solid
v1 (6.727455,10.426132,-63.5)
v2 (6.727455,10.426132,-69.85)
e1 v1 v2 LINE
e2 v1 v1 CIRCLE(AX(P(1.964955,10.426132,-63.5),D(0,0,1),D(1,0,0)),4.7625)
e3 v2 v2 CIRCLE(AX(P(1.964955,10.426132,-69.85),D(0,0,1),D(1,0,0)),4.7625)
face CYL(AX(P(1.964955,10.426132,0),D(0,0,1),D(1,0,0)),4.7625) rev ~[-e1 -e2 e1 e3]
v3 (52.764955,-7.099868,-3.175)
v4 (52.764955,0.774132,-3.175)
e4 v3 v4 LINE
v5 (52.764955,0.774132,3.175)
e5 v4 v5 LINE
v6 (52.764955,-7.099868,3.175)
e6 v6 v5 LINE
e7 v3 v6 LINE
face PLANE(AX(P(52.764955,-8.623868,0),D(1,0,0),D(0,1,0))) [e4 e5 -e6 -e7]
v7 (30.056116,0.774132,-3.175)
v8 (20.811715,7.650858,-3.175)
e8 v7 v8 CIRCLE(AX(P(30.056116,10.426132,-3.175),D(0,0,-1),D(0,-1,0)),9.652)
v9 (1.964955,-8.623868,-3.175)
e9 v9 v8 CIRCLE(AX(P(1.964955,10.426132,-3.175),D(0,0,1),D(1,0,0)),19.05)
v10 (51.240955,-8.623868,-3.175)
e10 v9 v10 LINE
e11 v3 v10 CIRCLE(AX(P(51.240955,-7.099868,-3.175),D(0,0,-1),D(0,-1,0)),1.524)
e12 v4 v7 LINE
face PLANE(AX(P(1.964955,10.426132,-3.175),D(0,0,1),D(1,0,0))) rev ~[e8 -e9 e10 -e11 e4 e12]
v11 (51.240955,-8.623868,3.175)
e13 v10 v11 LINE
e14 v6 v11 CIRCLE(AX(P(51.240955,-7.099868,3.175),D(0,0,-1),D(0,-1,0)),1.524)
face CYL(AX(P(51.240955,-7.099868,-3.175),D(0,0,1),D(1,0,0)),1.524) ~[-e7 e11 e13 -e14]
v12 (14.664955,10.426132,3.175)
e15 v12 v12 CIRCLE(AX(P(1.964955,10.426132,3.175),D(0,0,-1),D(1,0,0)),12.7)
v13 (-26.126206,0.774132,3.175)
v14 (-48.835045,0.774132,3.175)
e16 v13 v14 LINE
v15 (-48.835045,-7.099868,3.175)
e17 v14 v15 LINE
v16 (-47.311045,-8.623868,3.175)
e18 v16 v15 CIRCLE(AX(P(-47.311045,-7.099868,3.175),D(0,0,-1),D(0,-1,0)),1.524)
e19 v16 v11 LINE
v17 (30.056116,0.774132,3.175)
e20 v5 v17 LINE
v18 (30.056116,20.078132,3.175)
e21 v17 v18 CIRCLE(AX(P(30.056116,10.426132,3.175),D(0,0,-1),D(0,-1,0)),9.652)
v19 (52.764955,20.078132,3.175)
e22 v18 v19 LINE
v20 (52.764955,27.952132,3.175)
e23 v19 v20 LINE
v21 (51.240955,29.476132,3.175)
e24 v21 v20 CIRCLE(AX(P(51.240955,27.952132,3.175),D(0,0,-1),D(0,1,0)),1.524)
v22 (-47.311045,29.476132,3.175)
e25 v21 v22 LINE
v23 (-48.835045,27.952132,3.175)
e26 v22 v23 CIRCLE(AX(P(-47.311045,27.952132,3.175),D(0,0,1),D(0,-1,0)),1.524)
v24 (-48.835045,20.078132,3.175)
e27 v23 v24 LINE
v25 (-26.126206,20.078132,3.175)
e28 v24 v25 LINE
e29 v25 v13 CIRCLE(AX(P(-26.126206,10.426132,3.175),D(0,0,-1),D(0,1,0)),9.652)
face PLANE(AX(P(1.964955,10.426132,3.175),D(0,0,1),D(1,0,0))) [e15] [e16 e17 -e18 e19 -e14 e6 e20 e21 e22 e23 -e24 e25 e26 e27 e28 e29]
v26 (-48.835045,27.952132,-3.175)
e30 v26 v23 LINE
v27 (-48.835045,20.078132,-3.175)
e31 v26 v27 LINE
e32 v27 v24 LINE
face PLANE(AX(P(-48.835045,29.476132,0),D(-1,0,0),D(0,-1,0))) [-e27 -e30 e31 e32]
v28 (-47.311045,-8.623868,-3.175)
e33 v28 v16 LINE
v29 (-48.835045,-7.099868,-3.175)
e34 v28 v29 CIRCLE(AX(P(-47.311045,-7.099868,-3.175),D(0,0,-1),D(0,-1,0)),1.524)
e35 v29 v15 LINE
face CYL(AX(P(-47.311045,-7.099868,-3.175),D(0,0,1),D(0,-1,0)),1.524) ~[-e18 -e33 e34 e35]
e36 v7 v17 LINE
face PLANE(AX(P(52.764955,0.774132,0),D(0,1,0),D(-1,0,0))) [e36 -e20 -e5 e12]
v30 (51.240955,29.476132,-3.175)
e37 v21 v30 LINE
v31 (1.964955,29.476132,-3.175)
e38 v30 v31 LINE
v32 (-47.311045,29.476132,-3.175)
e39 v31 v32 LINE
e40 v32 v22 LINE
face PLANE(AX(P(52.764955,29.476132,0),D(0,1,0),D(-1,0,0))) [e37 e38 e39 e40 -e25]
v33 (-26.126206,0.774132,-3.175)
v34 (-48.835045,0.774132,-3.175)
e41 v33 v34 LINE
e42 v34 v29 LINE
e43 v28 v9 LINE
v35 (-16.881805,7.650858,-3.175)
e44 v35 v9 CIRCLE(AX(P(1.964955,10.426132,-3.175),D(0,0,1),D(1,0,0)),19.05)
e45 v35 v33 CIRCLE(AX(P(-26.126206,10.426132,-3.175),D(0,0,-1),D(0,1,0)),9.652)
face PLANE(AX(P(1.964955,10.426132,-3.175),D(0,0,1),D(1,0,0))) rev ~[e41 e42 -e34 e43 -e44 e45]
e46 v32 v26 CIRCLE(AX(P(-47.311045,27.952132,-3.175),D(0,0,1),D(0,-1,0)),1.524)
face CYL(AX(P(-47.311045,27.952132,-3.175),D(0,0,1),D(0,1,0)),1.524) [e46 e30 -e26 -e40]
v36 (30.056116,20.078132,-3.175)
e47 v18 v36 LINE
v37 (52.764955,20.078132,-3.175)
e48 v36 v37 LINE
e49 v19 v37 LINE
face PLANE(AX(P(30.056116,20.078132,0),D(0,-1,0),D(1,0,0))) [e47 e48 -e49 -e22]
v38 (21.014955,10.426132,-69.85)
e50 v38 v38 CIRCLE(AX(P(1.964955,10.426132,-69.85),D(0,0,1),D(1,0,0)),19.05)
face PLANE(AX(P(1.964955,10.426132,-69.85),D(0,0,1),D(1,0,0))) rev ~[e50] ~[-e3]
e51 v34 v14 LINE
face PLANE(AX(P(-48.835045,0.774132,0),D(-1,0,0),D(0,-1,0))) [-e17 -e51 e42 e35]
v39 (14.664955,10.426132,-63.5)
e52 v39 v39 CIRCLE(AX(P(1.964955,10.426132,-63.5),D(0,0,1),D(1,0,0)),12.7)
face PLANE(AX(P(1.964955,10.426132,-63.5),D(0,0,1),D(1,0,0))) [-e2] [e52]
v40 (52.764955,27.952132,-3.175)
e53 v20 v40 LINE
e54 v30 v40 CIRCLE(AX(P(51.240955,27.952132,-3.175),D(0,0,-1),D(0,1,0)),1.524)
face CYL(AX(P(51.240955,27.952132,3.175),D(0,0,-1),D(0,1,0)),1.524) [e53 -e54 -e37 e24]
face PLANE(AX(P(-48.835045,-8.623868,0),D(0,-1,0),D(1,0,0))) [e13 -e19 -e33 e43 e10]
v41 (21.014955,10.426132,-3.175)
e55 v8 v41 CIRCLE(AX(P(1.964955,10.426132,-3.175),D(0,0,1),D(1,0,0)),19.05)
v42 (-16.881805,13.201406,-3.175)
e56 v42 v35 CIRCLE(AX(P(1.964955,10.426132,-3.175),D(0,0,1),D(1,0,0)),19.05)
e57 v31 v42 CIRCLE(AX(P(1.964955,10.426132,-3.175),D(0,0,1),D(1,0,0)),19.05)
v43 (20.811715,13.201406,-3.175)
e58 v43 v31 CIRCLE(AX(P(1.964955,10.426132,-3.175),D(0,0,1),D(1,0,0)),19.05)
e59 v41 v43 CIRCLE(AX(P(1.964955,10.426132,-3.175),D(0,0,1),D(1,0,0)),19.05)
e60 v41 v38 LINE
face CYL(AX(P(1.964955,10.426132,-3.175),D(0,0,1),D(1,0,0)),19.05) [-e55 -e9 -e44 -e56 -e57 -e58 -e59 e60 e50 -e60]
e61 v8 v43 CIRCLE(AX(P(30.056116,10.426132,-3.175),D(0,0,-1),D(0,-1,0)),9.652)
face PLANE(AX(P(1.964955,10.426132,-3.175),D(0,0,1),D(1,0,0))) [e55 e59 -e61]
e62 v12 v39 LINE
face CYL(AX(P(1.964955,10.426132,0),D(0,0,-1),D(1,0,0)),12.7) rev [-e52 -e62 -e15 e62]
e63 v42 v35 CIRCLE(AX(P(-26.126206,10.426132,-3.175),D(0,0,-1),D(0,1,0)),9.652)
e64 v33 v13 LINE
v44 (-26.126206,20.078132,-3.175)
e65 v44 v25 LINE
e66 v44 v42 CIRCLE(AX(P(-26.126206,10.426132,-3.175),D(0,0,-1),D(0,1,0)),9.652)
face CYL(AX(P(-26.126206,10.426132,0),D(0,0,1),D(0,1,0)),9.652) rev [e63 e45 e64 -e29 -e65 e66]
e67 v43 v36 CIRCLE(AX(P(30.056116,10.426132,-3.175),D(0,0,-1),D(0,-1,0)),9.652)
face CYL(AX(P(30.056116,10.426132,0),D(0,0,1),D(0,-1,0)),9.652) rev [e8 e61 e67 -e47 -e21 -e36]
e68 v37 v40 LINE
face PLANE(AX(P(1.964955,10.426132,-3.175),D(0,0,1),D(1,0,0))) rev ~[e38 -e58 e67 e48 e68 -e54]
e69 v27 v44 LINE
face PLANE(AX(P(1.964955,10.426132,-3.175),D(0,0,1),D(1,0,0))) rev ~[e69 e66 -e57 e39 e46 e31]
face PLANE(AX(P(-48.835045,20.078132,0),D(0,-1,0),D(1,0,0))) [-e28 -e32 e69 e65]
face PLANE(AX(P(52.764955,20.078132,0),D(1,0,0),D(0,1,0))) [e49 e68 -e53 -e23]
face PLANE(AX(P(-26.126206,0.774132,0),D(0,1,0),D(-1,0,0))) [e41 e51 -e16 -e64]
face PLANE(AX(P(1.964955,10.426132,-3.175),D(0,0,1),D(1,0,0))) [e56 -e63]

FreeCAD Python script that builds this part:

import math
import FreeCAD as App
import Part
import Sketcher
Q = App.Units.Quantity


def edges_at(feature, points):
    """Names of the edges that pass closest to the given points."""
    edges = feature.Shape.Edges
    near = lambda p: min(range(len(edges)), key=lambda i: edges[i].distToShape(Part.Vertex(*p))[0])
    return sorted({f"Edge{near(p) + 1}" for p in points})

doc = App.newDocument("Part")
params = doc.addObject("Spreadsheet::Sheet", "Params")
for row, (alias, value) in enumerate([
    ("sketch1_width", "4 in"),
    ("sketch1_radius", "0.38 in"),
    ("sketch1_height", "0.37 in"),
    ("pad1_length", "0.25 in"),
    ("fillet_radius", "0.06 in"),
    ("sketch2_diameter", "1.5 in"),
    ("pad2_length", "2.625 in"),
    ("sketch3_diameter", "1 in"),
    ("pocket1_length", "2.5 in"),
    ("pocket1_length2", "1 in"),
    ("sketch4_diameter", "0.375 in"),
    ("pocket2_length", "75.09229 mm"),
], start=1):
    params.set(f"A{row}", alias)
    params.set(f"B{row}", "=" + value)
    params.setAlias(f"B{row}", alias)

body = doc.addObject("PartDesign::Body", "Body")

sketch1 = doc.addObject("Sketcher::SketchObject", "Sketch")
body.addObject(sketch1)
sketch1.AttachmentSupport = (doc.XY_Plane, [""])
sketch1.MapMode = "FlatFace"
sketch1.addGeometry(Part.LineSegment(App.Vector(53, 29, 0), App.Vector(-49, 29, 0)), False)
sketch1.addGeometry(Part.LineSegment(App.Vector(-49, 29, 0), App.Vector(-49, 20, 0)), False)
sketch1.addGeometry(Part.LineSegment(App.Vector(-49, 20, 0), App.Vector(-26, 20, 0)), False)
sketch1.addGeometry(Part.ArcOfCircle(Part.Circle(App.Vector(-26, 10, 0), App.Vector(0, 0, 1), 10), math.radians(-90), math.radians(90)), False)
sketch1.addGeometry(Part.LineSegment(App.Vector(-26, 1, 0), App.Vector(-49, 1, 0)), False)
sketch1.addGeometry(Part.LineSegment(App.Vector(-49, 1, 0), App.Vector(-49, -9, 0)), False)
sketch1.addGeometry(Part.LineSegment(App.Vector(-49, -9, 0), App.Vector(53, -9, 0)), False)
sketch1.addGeometry(Part.LineSegment(App.Vector(53, -9, 0), App.Vector(53, 1, 0)), False)
sketch1.addGeometry(Part.LineSegment(App.Vector(53, 1, 0), App.Vector(30, 1, 0)), False)
sketch1.addGeometry(Part.ArcOfCircle(Part.Circle(App.Vector(30, 10, 0), App.Vector(0, 0, 1), 10), math.radians(90), math.radians(270)), False)
sketch1.addGeometry(Part.LineSegment(App.Vector(30, 20, 0), App.Vector(53, 20, 0)), False)
sketch1.addGeometry(Part.LineSegment(App.Vector(53, 20, 0), App.Vector(53, 29, 0)), False)
sketch1.addConstraint(Sketcher.Constraint("Coincident", 0, 2, 1, 1))
sketch1.addConstraint(Sketcher.Constraint("Coincident", 1, 2, 2, 1))
sketch1.addConstraint(Sketcher.Constraint("Tangent", 2, 2, 3, 2))
sketch1.addConstraint(Sketcher.Constraint("Tangent", 3, 1, 4, 1))
sketch1.addConstraint(Sketcher.Constraint("Coincident", 4, 2, 5, 1))
sketch1.addConstraint(Sketcher.Constraint("Coincident", 5, 2, 6, 1))
sketch1.addConstraint(Sketcher.Constraint("Coincident", 6, 2, 7, 1))
sketch1.addConstraint(Sketcher.Constraint("Coincident", 7, 2, 8, 1))
sketch1.addConstraint(Sketcher.Constraint("Tangent", 8, 2, 9, 2))
sketch1.addConstraint(Sketcher.Constraint("Tangent", 9, 1, 10, 1))
sketch1.addConstraint(Sketcher.Constraint("Coincident", 10, 2, 11, 1))
sketch1.addConstraint(Sketcher.Constraint("Coincident", 11, 2, 0, 1))
sketch1.addConstraint(Sketcher.Constraint("Horizontal", 0))
sketch1.addConstraint(Sketcher.Constraint("Vertical", 1))
sketch1.addConstraint(Sketcher.Constraint("Horizontal", 2))
sketch1.addConstraint(Sketcher.Constraint("Horizontal", 4))
sketch1.addConstraint(Sketcher.Constraint("Vertical", 5))
sketch1.addConstraint(Sketcher.Constraint("Horizontal", 6))
sketch1.addConstraint(Sketcher.Constraint("Vertical", 7))
sketch1.addConstraint(Sketcher.Constraint("Horizontal", 8))
sketch1.addConstraint(Sketcher.Constraint("Horizontal", 10))
sketch1.addConstraint(Sketcher.Constraint("Vertical", 11))
sketch1.addConstraint(Sketcher.Constraint("Equal", 3, 9))
sketch1.addConstraint(Sketcher.Constraint("Horizontal", 3, 3, 9, 3))
sketch1.addConstraint(Sketcher.Constraint("Vertical", 1, 2, 4, 2))
sketch1.addConstraint(Sketcher.Constraint("Vertical", 7, 2, 10, 2))
sketch1.addConstraint(Sketcher.Constraint("Equal", 4, 8))
sketch1.addConstraint(Sketcher.Constraint("Equal", 1, 5))
sketch1.addConstraint(Sketcher.Constraint("DistanceX", 0, 2, 0, 1, Q("4 in")))
sketch1.addConstraint(Sketcher.Constraint("Radius", 3, Q("0.38 in")))
sketch1.addConstraint(Sketcher.Constraint("DistanceY", 1, 2, 1, 1, Q("0.37 in")))
sketch1.addConstraint(Sketcher.Constraint("DistanceX", 2, 1, 2, 2, Q("22.708839 mm")))
sketch1.addConstraint(Sketcher.Constraint("DistanceX", 3, 3, -1, 1, Q("26.126206 mm")))
sketch1.addConstraint(Sketcher.Constraint("DistanceY", -1, 1, 3, 3, Q("10.426132 mm")))
sketch1.setExpression("Constraints[28]", "Params.sketch1_width")
sketch1.setExpression("Constraints[29]", "Params.sketch1_radius")
sketch1.setExpression("Constraints[30]", "Params.sketch1_height")
pad1 = doc.addObject("PartDesign::Pad", "Pad")
body.addObject(pad1)
pad1.Profile = sketch1
pad1.setExpression("Length", "Params.pad1_length")
pad1.Midplane = True
doc.recompute()

fillet = doc.addObject("PartDesign::Fillet", "Fillet")
body.addObject(fillet)
fillet.Base = (pad1, edges_at(pad1, [
    (52.765, 29.476, 0),
    (52.765, -8.624, 0),
    (-48.835, -8.624, 0),
    (-48.835, 29.476, 0),
]))
fillet.setExpression("Radius", "Params.fillet_radius")

sketch2 = doc.addObject("Sketcher::SketchObject", "Sketch001")
body.addObject(sketch2)
sketch2.AttachmentSupport = (doc.XY_Plane, [""])
sketch2.MapMode = "FlatFace"
sketch2.AttachmentOffset = App.Placement(App.Vector(0, 0, -0.125 * 25.4), App.Rotation())
sketch2.addGeometry(Part.Circle(App.Vector(2, 10, 0), App.Vector(0, 0, 1), 19), False)
sketch2.addConstraint(Sketcher.Constraint("Diameter", 0, Q("1.5 in")))
sketch2.addConstraint(Sketcher.Constraint("DistanceX", -1, 1, 0, 3, Q("1.964955 mm")))
sketch2.addConstraint(Sketcher.Constraint("DistanceY", -1, 1, 0, 3, Q("10.426132 mm")))
sketch2.setExpression("Constraints[0]", "Params.sketch2_diameter")
pad2 = doc.addObject("PartDesign::Pad", "Pad001")
body.addObject(pad2)
pad2.Profile = sketch2
pad2.setExpression("Length", "Params.pad2_length")
pad2.Reversed = True

sketch3 = doc.addObject("Sketcher::SketchObject", "Sketch002")
body.addObject(sketch3)
sketch3.AttachmentSupport = (doc.XY_Plane, [""])
sketch3.MapMode = "FlatFace"
sketch3.addGeometry(Part.Circle(App.Vector(2, 10, 0), App.Vector(0, 0, 1), 13), False)
sketch3.addConstraint(Sketcher.Constraint("Diameter", 0, Q("1 in")))
sketch3.addConstraint(Sketcher.Constraint("DistanceX", -1, 1, 0, 3, Q("1.964955 mm")))
sketch3.addConstraint(Sketcher.Constraint("DistanceY", -1, 1, 0, 3, Q("10.426132 mm")))
sketch3.setExpression("Constraints[0]", "Params.sketch3_diameter")
pocket1 = doc.addObject("PartDesign::Pocket", "Pocket")
body.addObject(pocket1)
pocket1.Profile = sketch3
pocket1.Type = "TwoLengths"
pocket1.setExpression("Length", "Params.pocket1_length")
pocket1.setExpression("Length2", "Params.pocket1_length2")

sketch4 = doc.addObject("Sketcher::SketchObject", "Sketch003")
body.addObject(sketch4)
sketch4.AttachmentSupport = (doc.XY_Plane, [""])
sketch4.MapMode = "FlatFace"
sketch4.addGeometry(Part.Circle(App.Vector(2, 10.4, 0), App.Vector(0, 0, 1), 4.8), False)
sketch4.addConstraint(Sketcher.Constraint("Diameter", 0, Q("0.375 in")))
sketch4.addConstraint(Sketcher.Constraint("DistanceX", -1, 1, 0, 3, Q("1.964955 mm")))
sketch4.addConstraint(Sketcher.Constraint("DistanceY", -1, 1, 0, 3, Q("10.426132 mm")))
sketch4.setExpression("Constraints[0]", "Params.sketch4_diameter")
pocket2 = doc.addObject("PartDesign::Pocket", "Pocket001")
body.addObject(pocket2)
pocket2.Profile = sketch4
pocket2.setExpression("Length", "Params.pocket2_length")

doc.recompute()
